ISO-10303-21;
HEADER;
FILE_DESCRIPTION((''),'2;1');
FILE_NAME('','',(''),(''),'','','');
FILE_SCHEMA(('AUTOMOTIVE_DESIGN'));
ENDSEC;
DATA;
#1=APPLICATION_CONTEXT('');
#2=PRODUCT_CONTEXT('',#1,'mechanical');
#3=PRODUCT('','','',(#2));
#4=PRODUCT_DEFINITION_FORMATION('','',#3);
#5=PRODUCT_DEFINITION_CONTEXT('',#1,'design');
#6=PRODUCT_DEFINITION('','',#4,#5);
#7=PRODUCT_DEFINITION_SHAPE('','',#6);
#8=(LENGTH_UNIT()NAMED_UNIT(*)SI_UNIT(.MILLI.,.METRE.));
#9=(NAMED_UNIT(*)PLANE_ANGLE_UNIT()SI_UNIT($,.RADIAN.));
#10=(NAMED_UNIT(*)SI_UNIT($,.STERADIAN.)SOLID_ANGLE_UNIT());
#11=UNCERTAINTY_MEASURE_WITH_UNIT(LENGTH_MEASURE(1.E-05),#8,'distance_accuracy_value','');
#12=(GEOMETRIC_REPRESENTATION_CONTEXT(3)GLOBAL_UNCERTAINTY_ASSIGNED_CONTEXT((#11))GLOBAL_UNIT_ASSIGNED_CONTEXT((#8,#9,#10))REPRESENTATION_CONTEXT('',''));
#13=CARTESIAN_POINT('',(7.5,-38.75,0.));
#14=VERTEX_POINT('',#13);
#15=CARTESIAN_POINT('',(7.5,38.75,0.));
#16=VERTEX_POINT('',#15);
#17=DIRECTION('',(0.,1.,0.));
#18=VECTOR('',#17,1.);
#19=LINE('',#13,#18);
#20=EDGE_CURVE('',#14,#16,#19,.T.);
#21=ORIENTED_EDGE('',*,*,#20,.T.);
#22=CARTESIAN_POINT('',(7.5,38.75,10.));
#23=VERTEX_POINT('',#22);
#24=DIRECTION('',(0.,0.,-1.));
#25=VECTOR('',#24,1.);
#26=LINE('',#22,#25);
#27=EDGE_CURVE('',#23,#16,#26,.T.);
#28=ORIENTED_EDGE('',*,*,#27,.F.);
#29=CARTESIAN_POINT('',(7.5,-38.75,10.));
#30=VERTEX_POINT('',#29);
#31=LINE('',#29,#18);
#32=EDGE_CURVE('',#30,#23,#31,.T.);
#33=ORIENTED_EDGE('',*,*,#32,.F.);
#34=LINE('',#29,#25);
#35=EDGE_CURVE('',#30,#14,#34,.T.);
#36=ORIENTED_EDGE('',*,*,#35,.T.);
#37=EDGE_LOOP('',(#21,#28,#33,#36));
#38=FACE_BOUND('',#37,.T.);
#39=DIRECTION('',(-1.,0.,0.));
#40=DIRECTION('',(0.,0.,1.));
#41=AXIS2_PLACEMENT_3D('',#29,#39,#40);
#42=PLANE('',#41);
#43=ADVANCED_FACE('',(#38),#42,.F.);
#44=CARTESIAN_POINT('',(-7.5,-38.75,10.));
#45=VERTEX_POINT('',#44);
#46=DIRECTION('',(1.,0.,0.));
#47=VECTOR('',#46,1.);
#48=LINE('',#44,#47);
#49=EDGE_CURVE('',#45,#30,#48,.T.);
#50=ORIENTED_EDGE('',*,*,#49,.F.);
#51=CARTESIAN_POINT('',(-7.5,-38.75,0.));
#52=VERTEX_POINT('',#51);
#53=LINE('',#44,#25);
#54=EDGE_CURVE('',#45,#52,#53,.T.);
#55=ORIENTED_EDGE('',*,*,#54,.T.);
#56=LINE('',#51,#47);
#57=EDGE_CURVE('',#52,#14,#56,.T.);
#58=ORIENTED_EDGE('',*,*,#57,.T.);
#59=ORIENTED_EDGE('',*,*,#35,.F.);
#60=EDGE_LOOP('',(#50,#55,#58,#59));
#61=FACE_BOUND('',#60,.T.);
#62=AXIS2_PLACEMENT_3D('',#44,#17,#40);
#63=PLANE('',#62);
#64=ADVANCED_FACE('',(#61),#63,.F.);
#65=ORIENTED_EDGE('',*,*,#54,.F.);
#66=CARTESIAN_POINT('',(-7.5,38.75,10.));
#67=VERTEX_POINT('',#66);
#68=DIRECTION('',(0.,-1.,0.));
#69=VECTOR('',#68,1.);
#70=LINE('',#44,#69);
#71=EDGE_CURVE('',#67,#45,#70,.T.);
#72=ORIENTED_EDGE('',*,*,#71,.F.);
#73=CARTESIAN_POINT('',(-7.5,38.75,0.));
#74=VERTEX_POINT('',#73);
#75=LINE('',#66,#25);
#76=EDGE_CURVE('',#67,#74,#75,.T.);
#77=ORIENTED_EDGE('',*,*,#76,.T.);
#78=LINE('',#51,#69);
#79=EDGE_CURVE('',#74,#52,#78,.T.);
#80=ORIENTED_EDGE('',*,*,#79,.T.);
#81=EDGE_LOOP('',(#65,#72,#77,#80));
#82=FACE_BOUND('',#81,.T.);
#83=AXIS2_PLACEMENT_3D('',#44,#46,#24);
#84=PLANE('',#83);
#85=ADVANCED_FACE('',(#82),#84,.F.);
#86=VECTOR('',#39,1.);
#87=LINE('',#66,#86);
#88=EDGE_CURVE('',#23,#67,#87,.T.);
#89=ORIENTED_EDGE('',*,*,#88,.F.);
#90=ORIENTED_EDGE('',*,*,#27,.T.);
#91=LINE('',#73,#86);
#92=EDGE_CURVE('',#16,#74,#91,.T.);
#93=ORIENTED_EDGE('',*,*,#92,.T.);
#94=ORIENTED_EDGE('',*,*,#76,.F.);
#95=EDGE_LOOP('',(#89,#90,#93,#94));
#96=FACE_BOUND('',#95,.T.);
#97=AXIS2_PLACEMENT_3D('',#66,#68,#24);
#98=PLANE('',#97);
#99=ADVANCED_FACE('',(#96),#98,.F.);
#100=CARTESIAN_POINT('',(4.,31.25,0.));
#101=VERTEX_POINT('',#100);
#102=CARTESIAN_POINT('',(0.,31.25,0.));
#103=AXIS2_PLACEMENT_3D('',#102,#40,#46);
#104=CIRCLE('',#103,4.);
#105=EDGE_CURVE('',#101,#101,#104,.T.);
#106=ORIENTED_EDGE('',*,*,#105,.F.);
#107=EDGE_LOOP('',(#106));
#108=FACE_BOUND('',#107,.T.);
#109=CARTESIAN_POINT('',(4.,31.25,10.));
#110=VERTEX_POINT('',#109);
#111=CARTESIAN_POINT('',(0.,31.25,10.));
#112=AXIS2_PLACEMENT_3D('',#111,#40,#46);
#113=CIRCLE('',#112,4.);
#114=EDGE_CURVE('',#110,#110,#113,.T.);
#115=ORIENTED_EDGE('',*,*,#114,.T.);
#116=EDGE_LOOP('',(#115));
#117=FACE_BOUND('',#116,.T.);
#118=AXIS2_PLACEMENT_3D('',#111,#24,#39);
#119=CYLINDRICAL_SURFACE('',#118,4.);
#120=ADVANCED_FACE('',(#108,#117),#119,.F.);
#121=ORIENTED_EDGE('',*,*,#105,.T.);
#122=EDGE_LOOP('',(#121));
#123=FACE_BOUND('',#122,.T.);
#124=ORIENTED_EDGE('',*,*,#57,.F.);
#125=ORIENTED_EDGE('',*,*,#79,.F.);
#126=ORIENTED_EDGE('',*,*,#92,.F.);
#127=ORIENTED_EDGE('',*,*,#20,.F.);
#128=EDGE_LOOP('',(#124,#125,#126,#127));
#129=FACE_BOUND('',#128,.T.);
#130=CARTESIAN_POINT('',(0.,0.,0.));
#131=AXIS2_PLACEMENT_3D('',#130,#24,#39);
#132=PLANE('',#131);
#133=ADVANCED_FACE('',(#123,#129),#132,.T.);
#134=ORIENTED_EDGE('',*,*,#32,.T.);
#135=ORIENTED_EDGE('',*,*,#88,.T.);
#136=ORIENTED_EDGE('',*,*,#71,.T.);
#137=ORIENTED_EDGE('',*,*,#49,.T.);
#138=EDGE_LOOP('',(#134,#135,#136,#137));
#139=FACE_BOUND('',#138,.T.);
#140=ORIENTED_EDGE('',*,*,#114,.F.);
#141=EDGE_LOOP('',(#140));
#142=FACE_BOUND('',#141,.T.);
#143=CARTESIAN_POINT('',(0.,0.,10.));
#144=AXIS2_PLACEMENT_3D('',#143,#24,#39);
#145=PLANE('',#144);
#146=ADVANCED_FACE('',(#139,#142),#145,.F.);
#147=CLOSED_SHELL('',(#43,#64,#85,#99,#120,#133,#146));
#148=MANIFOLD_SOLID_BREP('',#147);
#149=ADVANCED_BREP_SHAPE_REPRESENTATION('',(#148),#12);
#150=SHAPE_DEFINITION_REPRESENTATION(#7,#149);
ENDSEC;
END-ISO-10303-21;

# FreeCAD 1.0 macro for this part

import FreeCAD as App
import Part
import Sketcher

V = App.Vector
Q = App.Units.Quantity

doc = App.newDocument("Part")
body = doc.addObject("PartDesign::Body", "Body")

sketch1 = doc.addObject("Sketcher::SketchObject", "Sketch")
body.addObject(sketch1)
sketch1.AttachmentSupport = (doc.XY_Plane, [""])
sketch1.MapMode = "FlatFace"
sketch1.addGeometry(Part.LineSegment(V(-7.5, 38.75, 0), V(-7.5, -38.75, 0)), False)
sketch1.addGeometry(Part.LineSegment(V(-7.5, -38.75, 0), V(7.5, -38.75, 0)), False)
sketch1.addGeometry(Part.LineSegment(V(7.5, -38.75, 0), V(7.5, 38.75, 0)), False)
sketch1.addGeometry(Part.LineSegment(V(7.5, 38.75, 0), V(-7.5, 38.75, 0)), False)
sketch1.addGeometry(Part.Circle(V(0, 31.25, 0), V(0, 0, 1), 4), False)
sketch1.addConstraint(Sketcher.Constraint("Coincident", 0, 2, 1, 1))
sketch1.addConstraint(Sketcher.Constraint("Coincident", 1, 2, 2, 1))
sketch1.addConstraint(Sketcher.Constraint("Coincident", 2, 2, 3, 1))
sketch1.addConstraint(Sketcher.Constraint("Coincident", 3, 2, 0, 1))
sketch1.addConstraint(Sketcher.Constraint("Vertical", 0))
sketch1.addConstraint(Sketcher.Constraint("Horizontal", 1))
sketch1.addConstraint(Sketcher.Constraint("Vertical", 2))
sketch1.addConstraint(Sketcher.Constraint("Horizontal", 3))
sketch1.addConstraint(Sketcher.Constraint("Symmetric", 0, 2, 2, 2, -1, 1))
sketch1.addConstraint(Sketcher.Constraint("PointOnObject", 4, 3, -2))
sketch1.addConstraint(Sketcher.Constraint("Diameter", 4, Q("8 mm")))
sketch1.addConstraint(Sketcher.Constraint("DistanceX", 1, 1, 1, 2, Q("15 mm")))
sketch1.addConstraint(Sketcher.Constraint("DistanceY", 0, 2, 0, 1, Q("77.5 mm")))
sketch1.addConstraint(Sketcher.Constraint("DistanceY", 0, 2, 4, 3, Q("70 mm")))
pad1 = doc.addObject("PartDesign::Pad", "Pad")
body.addObject(pad1)
pad1.Profile = sketch1
pad1.Length = 10

doc.recompute()
